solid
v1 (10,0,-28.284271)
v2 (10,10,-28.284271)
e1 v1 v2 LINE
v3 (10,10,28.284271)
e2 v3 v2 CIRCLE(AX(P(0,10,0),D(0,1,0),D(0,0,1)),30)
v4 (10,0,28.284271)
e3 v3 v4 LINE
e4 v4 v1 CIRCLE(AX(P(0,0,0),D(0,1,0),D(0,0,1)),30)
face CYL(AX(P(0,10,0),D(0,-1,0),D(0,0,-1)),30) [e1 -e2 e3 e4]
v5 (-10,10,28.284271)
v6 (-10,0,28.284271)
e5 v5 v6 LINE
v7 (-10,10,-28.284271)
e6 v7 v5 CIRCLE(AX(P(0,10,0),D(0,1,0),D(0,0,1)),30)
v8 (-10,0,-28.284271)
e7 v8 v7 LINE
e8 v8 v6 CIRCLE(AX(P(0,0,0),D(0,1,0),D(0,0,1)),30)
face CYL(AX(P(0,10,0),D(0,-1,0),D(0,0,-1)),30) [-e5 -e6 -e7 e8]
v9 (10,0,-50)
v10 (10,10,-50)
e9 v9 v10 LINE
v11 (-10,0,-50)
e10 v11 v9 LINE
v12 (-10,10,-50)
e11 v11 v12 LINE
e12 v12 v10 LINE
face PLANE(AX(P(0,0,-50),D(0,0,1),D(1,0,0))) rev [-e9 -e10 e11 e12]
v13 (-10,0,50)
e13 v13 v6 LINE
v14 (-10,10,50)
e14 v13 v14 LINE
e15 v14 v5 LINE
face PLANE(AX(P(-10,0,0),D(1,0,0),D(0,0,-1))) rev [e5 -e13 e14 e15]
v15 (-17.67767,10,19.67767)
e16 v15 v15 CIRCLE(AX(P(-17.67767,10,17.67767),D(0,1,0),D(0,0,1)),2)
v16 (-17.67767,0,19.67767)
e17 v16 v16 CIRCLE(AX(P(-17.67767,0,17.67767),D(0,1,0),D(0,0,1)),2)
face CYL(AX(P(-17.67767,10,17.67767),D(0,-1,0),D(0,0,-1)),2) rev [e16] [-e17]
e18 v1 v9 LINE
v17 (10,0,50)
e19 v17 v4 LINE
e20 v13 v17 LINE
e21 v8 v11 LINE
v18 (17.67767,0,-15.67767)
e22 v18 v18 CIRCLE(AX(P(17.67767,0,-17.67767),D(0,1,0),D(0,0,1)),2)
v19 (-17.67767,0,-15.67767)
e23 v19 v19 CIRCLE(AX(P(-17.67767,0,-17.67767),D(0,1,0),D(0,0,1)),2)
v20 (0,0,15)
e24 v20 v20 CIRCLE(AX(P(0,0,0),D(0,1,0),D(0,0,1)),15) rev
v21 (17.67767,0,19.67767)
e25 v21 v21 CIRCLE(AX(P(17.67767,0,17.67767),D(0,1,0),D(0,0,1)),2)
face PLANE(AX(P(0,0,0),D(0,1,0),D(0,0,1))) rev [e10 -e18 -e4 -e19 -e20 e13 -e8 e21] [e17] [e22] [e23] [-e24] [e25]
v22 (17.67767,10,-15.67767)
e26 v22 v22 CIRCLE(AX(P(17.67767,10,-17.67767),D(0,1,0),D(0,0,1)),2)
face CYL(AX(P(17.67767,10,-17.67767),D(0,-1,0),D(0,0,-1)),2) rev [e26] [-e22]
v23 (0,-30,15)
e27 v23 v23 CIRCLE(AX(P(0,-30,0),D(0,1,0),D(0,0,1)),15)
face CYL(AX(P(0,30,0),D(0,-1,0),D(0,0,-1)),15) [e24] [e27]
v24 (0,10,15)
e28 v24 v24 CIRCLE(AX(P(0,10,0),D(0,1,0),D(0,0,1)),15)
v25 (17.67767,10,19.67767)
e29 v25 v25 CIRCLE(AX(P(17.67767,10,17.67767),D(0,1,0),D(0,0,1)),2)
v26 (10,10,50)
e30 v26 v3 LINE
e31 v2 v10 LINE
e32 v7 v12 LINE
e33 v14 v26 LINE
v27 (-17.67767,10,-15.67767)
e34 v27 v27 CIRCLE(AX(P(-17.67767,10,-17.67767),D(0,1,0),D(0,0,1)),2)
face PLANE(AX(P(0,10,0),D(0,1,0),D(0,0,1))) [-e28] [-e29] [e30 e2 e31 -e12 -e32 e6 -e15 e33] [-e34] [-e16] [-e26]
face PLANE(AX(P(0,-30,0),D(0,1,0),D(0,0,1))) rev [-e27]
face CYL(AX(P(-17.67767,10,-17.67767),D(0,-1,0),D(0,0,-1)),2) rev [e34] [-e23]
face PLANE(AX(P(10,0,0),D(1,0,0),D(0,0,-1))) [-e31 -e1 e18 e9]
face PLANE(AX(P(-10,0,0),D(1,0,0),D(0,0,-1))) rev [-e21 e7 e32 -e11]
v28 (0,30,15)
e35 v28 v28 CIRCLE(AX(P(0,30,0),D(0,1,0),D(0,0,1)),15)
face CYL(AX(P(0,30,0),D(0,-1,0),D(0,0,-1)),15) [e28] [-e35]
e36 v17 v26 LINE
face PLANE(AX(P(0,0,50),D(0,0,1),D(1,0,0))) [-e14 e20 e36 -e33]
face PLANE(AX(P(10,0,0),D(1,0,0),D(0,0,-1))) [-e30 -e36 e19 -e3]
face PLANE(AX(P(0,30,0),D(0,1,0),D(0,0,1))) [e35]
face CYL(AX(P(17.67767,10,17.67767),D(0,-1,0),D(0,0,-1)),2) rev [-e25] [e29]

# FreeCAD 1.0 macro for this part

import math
import FreeCAD as App
import Part
import Sketcher

V = App.Vector

doc = App.newDocument("Part")
body = doc.addObject("PartDesign::Body", "Body")

# Sketch on XZ plane
sketch1 = body.newObject("Sketcher::SketchObject", "Sketch")
sketch1.AttachmentSupport = (doc.getObject("XZ_Plane"), [""])
sketch1.MapMode = "FlatFace"
sketch1.addGeometry(Part.Circle(V(0, 0, 0), V(0, 0, 1), 30), False)
sketch1.addGeometry(Part.Circle(V(-17.67767, -17.67767, 0), V(0, 0, 1), 2), False)
sketch1.addGeometry(Part.Circle(V(-17.67767, 17.67767, 0), V(0, 0, 1), 2), False)
sketch1.addGeometry(Part.Circle(V(17.67767, -17.67767, 0), V(0, 0, 1), 2), False)
sketch1.addGeometry(Part.Circle(V(0, 0, 0), V(0, 0, 1), 15), False)
sketch1.addGeometry(Part.Circle(V(17.67767, 17.67767, 0), V(0, 0, 1), 2), False)
sketch1.addConstraint(Sketcher.Constraint("Coincident", 0, 3, -1, 1))
sketch1.addConstraint(Sketcher.Constraint("Coincident", 4, 3, -1, 1))
sketch1.addConstraint(Sketcher.Constraint("Equal", 1, 2))
sketch1.addConstraint(Sketcher.Constraint("Equal", 2, 3))
sketch1.addConstraint(Sketcher.Constraint("Equal", 3, 5))
sketch1.addConstraint(Sketcher.Constraint("Symmetric", 2, 3, 3, 3, -1, 1))
sketch1.addConstraint(Sketcher.Constraint("Symmetric", 1, 3, 5, 3, -1, 1))
sketch1.addConstraint(Sketcher.Constraint("Symmetric", 1, 3, 3, 3, -2))
sketch1.addConstraint(Sketcher.Constraint("Diameter", 0, 60.0))
sketch1.addConstraint(Sketcher.Constraint("Diameter", 1, 4.0))
sketch1.addConstraint(Sketcher.Constraint("Diameter", 4, 30.0))
sketch1.addConstraint(Sketcher.Constraint("DistanceX", 1, 3, -1, 1, 17.67767))
sketch1.addConstraint(Sketcher.Constraint("DistanceY", 1, 3, -1, 1, 17.67767))
pad1 = body.newObject("PartDesign::Pad", "Pad")
pad1.Profile = sketch1
pad1.Length = 10
pad1.Reversed = True

# Sketch on XZ plane
sketch2 = body.newObject("Sketcher::SketchObject", "Sketch001")
sketch2.AttachmentSupport = (doc.getObject("XZ_Plane"), [""])
sketch2.MapMode = "FlatFace"
sketch2.addGeometry(Part.ArcOfCircle(Part.Circle(V(0, 0, 0), V(0, 0, 1), 15), math.radians(-131.810315), math.radians(-48.189685)), False)
sketch2.addGeometry(Part.LineSegment(V(10, -11.18034, 0), V(10, -28.284271, 0)), False)
sketch2.addGeometry(Part.ArcOfCircle(Part.Circle(V(0, 0, 0), V(0, 0, 1), 30), math.radians(-109.471221), math.radians(-70.528779)), False)
sketch2.addGeometry(Part.LineSegment(V(-10, -28.284271, 0), V(-10, -11.18034, 0)), False)
sketch2.addGeometry(Part.ArcOfCircle(Part.Circle(V(0, 0, 0), V(0, 0, 1), 30), math.radians(-109.471221), math.radians(-70.528779)), False)
sketch2.addGeometry(Part.LineSegment(V(10, -28.284271, 0), V(10, -50, 0)), False)
sketch2.addGeometry(Part.LineSegment(V(10, -50, 0), V(-10, -50, 0)), False)
sketch2.addGeometry(Part.LineSegment(V(-10, -50, 0), V(-10, -28.284271, 0)), False)
sketch2.addGeometry(Part.ArcOfCircle(Part.Circle(V(0, 0, 0), V(0, 0, 1), 15), math.radians(48.189685), math.radians(131.810315)), False)
sketch2.addGeometry(Part.LineSegment(V(-10, 11.18034, 0), V(-10, 28.284271, 0)), False)
sketch2.addGeometry(Part.ArcOfCircle(Part.Circle(V(0, 0, 0), V(0, 0, 1), 30), math.radians(70.528779), math.radians(109.471221)), False)
sketch2.addGeometry(Part.LineSegment(V(10, 28.284271, 0), V(10, 11.18034, 0)), False)
sketch2.addGeometry(Part.LineSegment(V(10, 50, 0), V(10, 28.284271, 0)), False)
sketch2.addGeometry(Part.ArcOfCircle(Part.Circle(V(0, 0, 0), V(0, 0, 1), 30), math.radians(70.528779), math.radians(109.471221)), False)
sketch2.addGeometry(Part.LineSegment(V(-10, 28.284271, 0), V(-10, 50, 0)), False)
sketch2.addGeometry(Part.LineSegment(V(-10, 50, 0), V(10, 50, 0)), False)
sketch2.addConstraint(Sketcher.Constraint("Coincident", 0, 2, 1, 1))
sketch2.addConstraint(Sketcher.Constraint("Coincident", 1, 2, 2, 2))
sketch2.addConstraint(Sketcher.Constraint("Coincident", 2, 1, 3, 1))
sketch2.addConstraint(Sketcher.Constraint("Coincident", 3, 2, 0, 1))
sketch2.addConstraint(Sketcher.Constraint("Coincident", 4, 2, 5, 1))
sketch2.addConstraint(Sketcher.Constraint("Coincident", 5, 2, 6, 1))
sketch2.addConstraint(Sketcher.Constraint("Coincident", 6, 2, 7, 1))
sketch2.addConstraint(Sketcher.Constraint("Coincident", 7, 2, 4, 1))
sketch2.addConstraint(Sketcher.Constraint("Coincident", 8, 2, 9, 1))
sketch2.addConstraint(Sketcher.Constraint("Coincident", 9, 2, 10, 2))
sketch2.addConstraint(Sketcher.Constraint("Coincident", 10, 1, 11, 1))
sketch2.addConstraint(Sketcher.Constraint("Coincident", 11, 2, 8, 1))
sketch2.addConstraint(Sketcher.Constraint("Coincident", 12, 2, 13, 1))
sketch2.addConstraint(Sketcher.Constraint("Coincident", 13, 2, 14, 1))
sketch2.addConstraint(Sketcher.Constraint("Coincident", 14, 2, 15, 1))
sketch2.addConstraint(Sketcher.Constraint("Coincident", 15, 2, 12, 1))
sketch2.addConstraint(Sketcher.Constraint("Vertical", 1))
sketch2.addConstraint(Sketcher.Constraint("Vertical", 3))
sketch2.addConstraint(Sketcher.Constraint("Vertical", 5))
sketch2.addConstraint(Sketcher.Constraint("Horizontal", 6))
sketch2.addConstraint(Sketcher.Constraint("Vertical", 7))
sketch2.addConstraint(Sketcher.Constraint("Vertical", 9))
sketch2.addConstraint(Sketcher.Constraint("Vertical", 11))
sketch2.addConstraint(Sketcher.Constraint("Vertical", 12))
sketch2.addConstraint(Sketcher.Constraint("Vertical", 14))
sketch2.addConstraint(Sketcher.Constraint("Horizontal", 15))
sketch2.addConstraint(Sketcher.Constraint("Coincident", 0, 3, -1, 1))
sketch2.addConstraint(Sketcher.Constraint("Coincident", 2, 3, -1, 1))
sketch2.addConstraint(Sketcher.Constraint("Coincident", 4, 3, -1, 1))
sketch2.addConstraint(Sketcher.Constraint("Coincident", 8, 3, -1, 1))
sketch2.addConstraint(Sketcher.Constraint("Coincident", 10, 3, -1, 1))
sketch2.addConstraint(Sketcher.Constraint("Coincident", 13, 3, -1, 1))
sketch2.addConstraint(Sketcher.Constraint("Coincident", 4, 2, 1, 2))
sketch2.addConstraint(Sketcher.Constraint("Coincident", 12, 2, 10, 1))
sketch2.addConstraint(Sketcher.Constraint("Equal", 0, 8))
sketch2.addConstraint(Sketcher.Constraint("Equal", 4, 10))
sketch2.addConstraint(Sketcher.Constraint("Symmetric", 5, 2, 14, 2, -1, 1))
sketch2.addConstraint(Sketcher.Constraint("Horizontal", 1, 2, 2, 1))
sketch2.addConstraint(Sketcher.Constraint("Horizontal", 4, 2, 7, 2))
sketch2.addConstraint(Sketcher.Constraint("Horizontal", 9, 2, 10, 1))
sketch2.addConstraint(Sketcher.Constraint("Horizontal", 12, 2, 13, 2))
sketch2.addConstraint(Sketcher.Constraint("Radius", 0, 15.0))
sketch2.addConstraint(Sketcher.Constraint("Radius", 2, 30.0))
sketch2.addConstraint(Sketcher.Constraint("DistanceX", 6, 2, 6, 1, 20.0))
sketch2.addConstraint(Sketcher.Constraint("DistanceY", 5, 2, -1, 1, 50.0))
pad2 = body.newObject("PartDesign::Pad", "Pad001")
pad2.Profile = sketch2
pad2.Length = 10
pad2.Reversed = True

# Sketch on XZ plane
sketch3 = body.newObject("Sketcher::SketchObject", "Sketch002")
sketch3.AttachmentSupport = (doc.getObject("XZ_Plane"), [""])
sketch3.MapMode = "FlatFace"
sketch3.addGeometry(Part.Circle(V(0, 0, 0), V(0, 0, 1), 15), False)
sketch3.addConstraint(Sketcher.Constraint("Coincident", 0, 3, -1, 1))
sketch3.addConstraint(Sketcher.Constraint("Diameter", 0, 30.0))
pad3 = body.newObject("PartDesign::Pad", "Pad002")
pad3.Profile = sketch3
pad3.Length = 60
pad3.Midplane = True

doc.recompute()
